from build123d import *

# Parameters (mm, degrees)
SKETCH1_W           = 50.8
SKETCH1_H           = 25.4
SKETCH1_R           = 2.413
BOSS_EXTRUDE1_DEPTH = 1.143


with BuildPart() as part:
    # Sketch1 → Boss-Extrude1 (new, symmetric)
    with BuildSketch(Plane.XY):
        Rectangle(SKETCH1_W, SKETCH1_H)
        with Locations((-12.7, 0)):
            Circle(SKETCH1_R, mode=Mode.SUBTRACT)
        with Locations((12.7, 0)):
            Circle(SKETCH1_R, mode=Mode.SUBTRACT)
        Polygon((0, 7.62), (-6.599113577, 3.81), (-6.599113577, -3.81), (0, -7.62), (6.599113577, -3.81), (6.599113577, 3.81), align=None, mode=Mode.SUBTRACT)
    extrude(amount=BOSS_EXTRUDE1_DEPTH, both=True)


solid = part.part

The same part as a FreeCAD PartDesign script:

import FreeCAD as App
import Part
import Sketcher

V = App.Vector
Q = App.Units.Quantity

doc = App.newDocument("Part")
params = doc.addObject("Spreadsheet::Sheet", "Params")
for row, (alias, value) in enumerate([
    ("sketch1_diameter", "0.19 in"),
    ("sketch1_width", "2 in"),
    ("sketch1_height", "1 in"),
    ("sketch1_height2", "0.3 in"),
    ("sketch1_length", "0.3 in"),
    ("pad1_length", "0.09 in"),
], start=1):
    params.set(f"A{row}", alias)
    params.set(f"B{row}", "=" + value)
    params.setAlias(f"B{row}", alias)

body = doc.addObject("PartDesign::Body", "Body")

# Sketch on XY plane
sketch1 = doc.addObject("Sketcher::SketchObject", "Sketch")
body.addObject(sketch1)
sketch1.AttachmentSupport = (doc.XY_Plane, [""])
sketch1.MapMode = "FlatFace"
sketch1.addGeometry([
    Part.LineSegment(V(-25.4, 12.7, 0), V(-25.4, -12.7, 0)),  # 0
    Part.LineSegment(V(-25.4, -12.7, 0), V(25.4, -12.7, 0)),  # 1
    Part.LineSegment(V(25.4, -12.7, 0), V(25.4, 12.7, 0)),  # 2
    Part.LineSegment(V(25.4, 12.7, 0), V(-25.4, 12.7, 0)),  # 3
    Part.Circle(V(-12.7, 0, 0), V(0, 0, 1), 2.4),  # 4
    Part.LineSegment(V(-6.6, 3.8, 0), V(0, 7.6, 0)),  # 5
    Part.LineSegment(V(0, 7.6, 0), V(6.6, 3.8, 0)),  # 6
    Part.LineSegment(V(6.6, 3.8, 0), V(6.6, -3.8, 0)),  # 7
    Part.LineSegment(V(6.6, -3.8, 0), V(0, -7.6, 0)),  # 8
    Part.LineSegment(V(0, -7.6, 0), V(-6.6, -3.8, 0)),  # 9
    Part.LineSegment(V(-6.6, -3.8, 0), V(-6.6, 3.8, 0)),  # 10
    Part.Circle(V(12.7, 0, 0), V(0, 0, 1), 2.4),  # 11
], False)
sketch1.addConstraint([
    Sketcher.Constraint("Coincident", 0, 2, 1, 1),
    Sketcher.Constraint("Coincident", 1, 2, 2, 1),
    Sketcher.Constraint("Coincident", 2, 2, 3, 1),
    Sketcher.Constraint("Coincident", 3, 2, 0, 1),
    Sketcher.Constraint("Coincident", 5, 2, 6, 1),
    Sketcher.Constraint("Coincident", 6, 2, 7, 1),
    Sketcher.Constraint("Coincident", 7, 2, 8, 1),
    Sketcher.Constraint("Coincident", 8, 2, 9, 1),
    Sketcher.Constraint("Coincident", 9, 2, 10, 1),
    Sketcher.Constraint("Coincident", 10, 2, 5, 1),
    Sketcher.Constraint("Vertical", 0),
    Sketcher.Constraint("Horizontal", 1),
    Sketcher.Constraint("Vertical", 2),
    Sketcher.Constraint("Horizontal", 3),
    Sketcher.Constraint("Vertical", 7),
    Sketcher.Constraint("Vertical", 10),
    Sketcher.Constraint("Equal", 4, 11),
    Sketcher.Constraint("Symmetric", 4, 3, 11, 3, -1, 1),
    Sketcher.Constraint("Symmetric", 0, 2, 2, 2, -1, 1),
    Sketcher.Constraint("Symmetric", 5, 2, 8, 2, -1, 1),
    Sketcher.Constraint("Symmetric", 6, 2, 9, 2, -1, 1),
    Sketcher.Constraint("PointOnObject", 4, 3, -1),
    Sketcher.Constraint("PointOnObject", 5, 2, -2),
    Sketcher.Constraint("Parallel", 5, 8),
    Sketcher.Constraint("Horizontal", 7, 2, 9, 2),
    Sketcher.Constraint("Diameter", 4, Q("0.19 in")),
    Sketcher.Constraint("DistanceX", 1, 1, 1, 2, Q("2 in")),
    Sketcher.Constraint("DistanceY", 0, 2, 0, 1, Q("1 in")),
    Sketcher.Constraint("DistanceY", 7, 2, 7, 1, Q("0.3 in")),
    Sketcher.Constraint("Angle", 5, Q("30 deg")),
    Sketcher.Constraint("DistanceX", 4, 3, 11, 3, Q("1 in")),
    Sketcher.Constraint("Distance", 5, Q("0.3 in")),
])
sketch1.setExpression("Constraints[25]", "Params.sketch1_diameter")
sketch1.setExpression("Constraints[26]", "Params.sketch1_width")
sketch1.setExpression("Constraints[27]", "Params.sketch1_height")
sketch1.setExpression("Constraints[28]", "Params.sketch1_height2")
sketch1.setExpression("Constraints[31]", "Params.sketch1_length")
pad1 = doc.addObject("PartDesign::Pad", "Pad")
body.addObject(pad1)
pad1.Profile = sketch1
pad1.setExpression("Length", "Params.pad1_length")
pad1.Midplane = True

doc.recompute()
